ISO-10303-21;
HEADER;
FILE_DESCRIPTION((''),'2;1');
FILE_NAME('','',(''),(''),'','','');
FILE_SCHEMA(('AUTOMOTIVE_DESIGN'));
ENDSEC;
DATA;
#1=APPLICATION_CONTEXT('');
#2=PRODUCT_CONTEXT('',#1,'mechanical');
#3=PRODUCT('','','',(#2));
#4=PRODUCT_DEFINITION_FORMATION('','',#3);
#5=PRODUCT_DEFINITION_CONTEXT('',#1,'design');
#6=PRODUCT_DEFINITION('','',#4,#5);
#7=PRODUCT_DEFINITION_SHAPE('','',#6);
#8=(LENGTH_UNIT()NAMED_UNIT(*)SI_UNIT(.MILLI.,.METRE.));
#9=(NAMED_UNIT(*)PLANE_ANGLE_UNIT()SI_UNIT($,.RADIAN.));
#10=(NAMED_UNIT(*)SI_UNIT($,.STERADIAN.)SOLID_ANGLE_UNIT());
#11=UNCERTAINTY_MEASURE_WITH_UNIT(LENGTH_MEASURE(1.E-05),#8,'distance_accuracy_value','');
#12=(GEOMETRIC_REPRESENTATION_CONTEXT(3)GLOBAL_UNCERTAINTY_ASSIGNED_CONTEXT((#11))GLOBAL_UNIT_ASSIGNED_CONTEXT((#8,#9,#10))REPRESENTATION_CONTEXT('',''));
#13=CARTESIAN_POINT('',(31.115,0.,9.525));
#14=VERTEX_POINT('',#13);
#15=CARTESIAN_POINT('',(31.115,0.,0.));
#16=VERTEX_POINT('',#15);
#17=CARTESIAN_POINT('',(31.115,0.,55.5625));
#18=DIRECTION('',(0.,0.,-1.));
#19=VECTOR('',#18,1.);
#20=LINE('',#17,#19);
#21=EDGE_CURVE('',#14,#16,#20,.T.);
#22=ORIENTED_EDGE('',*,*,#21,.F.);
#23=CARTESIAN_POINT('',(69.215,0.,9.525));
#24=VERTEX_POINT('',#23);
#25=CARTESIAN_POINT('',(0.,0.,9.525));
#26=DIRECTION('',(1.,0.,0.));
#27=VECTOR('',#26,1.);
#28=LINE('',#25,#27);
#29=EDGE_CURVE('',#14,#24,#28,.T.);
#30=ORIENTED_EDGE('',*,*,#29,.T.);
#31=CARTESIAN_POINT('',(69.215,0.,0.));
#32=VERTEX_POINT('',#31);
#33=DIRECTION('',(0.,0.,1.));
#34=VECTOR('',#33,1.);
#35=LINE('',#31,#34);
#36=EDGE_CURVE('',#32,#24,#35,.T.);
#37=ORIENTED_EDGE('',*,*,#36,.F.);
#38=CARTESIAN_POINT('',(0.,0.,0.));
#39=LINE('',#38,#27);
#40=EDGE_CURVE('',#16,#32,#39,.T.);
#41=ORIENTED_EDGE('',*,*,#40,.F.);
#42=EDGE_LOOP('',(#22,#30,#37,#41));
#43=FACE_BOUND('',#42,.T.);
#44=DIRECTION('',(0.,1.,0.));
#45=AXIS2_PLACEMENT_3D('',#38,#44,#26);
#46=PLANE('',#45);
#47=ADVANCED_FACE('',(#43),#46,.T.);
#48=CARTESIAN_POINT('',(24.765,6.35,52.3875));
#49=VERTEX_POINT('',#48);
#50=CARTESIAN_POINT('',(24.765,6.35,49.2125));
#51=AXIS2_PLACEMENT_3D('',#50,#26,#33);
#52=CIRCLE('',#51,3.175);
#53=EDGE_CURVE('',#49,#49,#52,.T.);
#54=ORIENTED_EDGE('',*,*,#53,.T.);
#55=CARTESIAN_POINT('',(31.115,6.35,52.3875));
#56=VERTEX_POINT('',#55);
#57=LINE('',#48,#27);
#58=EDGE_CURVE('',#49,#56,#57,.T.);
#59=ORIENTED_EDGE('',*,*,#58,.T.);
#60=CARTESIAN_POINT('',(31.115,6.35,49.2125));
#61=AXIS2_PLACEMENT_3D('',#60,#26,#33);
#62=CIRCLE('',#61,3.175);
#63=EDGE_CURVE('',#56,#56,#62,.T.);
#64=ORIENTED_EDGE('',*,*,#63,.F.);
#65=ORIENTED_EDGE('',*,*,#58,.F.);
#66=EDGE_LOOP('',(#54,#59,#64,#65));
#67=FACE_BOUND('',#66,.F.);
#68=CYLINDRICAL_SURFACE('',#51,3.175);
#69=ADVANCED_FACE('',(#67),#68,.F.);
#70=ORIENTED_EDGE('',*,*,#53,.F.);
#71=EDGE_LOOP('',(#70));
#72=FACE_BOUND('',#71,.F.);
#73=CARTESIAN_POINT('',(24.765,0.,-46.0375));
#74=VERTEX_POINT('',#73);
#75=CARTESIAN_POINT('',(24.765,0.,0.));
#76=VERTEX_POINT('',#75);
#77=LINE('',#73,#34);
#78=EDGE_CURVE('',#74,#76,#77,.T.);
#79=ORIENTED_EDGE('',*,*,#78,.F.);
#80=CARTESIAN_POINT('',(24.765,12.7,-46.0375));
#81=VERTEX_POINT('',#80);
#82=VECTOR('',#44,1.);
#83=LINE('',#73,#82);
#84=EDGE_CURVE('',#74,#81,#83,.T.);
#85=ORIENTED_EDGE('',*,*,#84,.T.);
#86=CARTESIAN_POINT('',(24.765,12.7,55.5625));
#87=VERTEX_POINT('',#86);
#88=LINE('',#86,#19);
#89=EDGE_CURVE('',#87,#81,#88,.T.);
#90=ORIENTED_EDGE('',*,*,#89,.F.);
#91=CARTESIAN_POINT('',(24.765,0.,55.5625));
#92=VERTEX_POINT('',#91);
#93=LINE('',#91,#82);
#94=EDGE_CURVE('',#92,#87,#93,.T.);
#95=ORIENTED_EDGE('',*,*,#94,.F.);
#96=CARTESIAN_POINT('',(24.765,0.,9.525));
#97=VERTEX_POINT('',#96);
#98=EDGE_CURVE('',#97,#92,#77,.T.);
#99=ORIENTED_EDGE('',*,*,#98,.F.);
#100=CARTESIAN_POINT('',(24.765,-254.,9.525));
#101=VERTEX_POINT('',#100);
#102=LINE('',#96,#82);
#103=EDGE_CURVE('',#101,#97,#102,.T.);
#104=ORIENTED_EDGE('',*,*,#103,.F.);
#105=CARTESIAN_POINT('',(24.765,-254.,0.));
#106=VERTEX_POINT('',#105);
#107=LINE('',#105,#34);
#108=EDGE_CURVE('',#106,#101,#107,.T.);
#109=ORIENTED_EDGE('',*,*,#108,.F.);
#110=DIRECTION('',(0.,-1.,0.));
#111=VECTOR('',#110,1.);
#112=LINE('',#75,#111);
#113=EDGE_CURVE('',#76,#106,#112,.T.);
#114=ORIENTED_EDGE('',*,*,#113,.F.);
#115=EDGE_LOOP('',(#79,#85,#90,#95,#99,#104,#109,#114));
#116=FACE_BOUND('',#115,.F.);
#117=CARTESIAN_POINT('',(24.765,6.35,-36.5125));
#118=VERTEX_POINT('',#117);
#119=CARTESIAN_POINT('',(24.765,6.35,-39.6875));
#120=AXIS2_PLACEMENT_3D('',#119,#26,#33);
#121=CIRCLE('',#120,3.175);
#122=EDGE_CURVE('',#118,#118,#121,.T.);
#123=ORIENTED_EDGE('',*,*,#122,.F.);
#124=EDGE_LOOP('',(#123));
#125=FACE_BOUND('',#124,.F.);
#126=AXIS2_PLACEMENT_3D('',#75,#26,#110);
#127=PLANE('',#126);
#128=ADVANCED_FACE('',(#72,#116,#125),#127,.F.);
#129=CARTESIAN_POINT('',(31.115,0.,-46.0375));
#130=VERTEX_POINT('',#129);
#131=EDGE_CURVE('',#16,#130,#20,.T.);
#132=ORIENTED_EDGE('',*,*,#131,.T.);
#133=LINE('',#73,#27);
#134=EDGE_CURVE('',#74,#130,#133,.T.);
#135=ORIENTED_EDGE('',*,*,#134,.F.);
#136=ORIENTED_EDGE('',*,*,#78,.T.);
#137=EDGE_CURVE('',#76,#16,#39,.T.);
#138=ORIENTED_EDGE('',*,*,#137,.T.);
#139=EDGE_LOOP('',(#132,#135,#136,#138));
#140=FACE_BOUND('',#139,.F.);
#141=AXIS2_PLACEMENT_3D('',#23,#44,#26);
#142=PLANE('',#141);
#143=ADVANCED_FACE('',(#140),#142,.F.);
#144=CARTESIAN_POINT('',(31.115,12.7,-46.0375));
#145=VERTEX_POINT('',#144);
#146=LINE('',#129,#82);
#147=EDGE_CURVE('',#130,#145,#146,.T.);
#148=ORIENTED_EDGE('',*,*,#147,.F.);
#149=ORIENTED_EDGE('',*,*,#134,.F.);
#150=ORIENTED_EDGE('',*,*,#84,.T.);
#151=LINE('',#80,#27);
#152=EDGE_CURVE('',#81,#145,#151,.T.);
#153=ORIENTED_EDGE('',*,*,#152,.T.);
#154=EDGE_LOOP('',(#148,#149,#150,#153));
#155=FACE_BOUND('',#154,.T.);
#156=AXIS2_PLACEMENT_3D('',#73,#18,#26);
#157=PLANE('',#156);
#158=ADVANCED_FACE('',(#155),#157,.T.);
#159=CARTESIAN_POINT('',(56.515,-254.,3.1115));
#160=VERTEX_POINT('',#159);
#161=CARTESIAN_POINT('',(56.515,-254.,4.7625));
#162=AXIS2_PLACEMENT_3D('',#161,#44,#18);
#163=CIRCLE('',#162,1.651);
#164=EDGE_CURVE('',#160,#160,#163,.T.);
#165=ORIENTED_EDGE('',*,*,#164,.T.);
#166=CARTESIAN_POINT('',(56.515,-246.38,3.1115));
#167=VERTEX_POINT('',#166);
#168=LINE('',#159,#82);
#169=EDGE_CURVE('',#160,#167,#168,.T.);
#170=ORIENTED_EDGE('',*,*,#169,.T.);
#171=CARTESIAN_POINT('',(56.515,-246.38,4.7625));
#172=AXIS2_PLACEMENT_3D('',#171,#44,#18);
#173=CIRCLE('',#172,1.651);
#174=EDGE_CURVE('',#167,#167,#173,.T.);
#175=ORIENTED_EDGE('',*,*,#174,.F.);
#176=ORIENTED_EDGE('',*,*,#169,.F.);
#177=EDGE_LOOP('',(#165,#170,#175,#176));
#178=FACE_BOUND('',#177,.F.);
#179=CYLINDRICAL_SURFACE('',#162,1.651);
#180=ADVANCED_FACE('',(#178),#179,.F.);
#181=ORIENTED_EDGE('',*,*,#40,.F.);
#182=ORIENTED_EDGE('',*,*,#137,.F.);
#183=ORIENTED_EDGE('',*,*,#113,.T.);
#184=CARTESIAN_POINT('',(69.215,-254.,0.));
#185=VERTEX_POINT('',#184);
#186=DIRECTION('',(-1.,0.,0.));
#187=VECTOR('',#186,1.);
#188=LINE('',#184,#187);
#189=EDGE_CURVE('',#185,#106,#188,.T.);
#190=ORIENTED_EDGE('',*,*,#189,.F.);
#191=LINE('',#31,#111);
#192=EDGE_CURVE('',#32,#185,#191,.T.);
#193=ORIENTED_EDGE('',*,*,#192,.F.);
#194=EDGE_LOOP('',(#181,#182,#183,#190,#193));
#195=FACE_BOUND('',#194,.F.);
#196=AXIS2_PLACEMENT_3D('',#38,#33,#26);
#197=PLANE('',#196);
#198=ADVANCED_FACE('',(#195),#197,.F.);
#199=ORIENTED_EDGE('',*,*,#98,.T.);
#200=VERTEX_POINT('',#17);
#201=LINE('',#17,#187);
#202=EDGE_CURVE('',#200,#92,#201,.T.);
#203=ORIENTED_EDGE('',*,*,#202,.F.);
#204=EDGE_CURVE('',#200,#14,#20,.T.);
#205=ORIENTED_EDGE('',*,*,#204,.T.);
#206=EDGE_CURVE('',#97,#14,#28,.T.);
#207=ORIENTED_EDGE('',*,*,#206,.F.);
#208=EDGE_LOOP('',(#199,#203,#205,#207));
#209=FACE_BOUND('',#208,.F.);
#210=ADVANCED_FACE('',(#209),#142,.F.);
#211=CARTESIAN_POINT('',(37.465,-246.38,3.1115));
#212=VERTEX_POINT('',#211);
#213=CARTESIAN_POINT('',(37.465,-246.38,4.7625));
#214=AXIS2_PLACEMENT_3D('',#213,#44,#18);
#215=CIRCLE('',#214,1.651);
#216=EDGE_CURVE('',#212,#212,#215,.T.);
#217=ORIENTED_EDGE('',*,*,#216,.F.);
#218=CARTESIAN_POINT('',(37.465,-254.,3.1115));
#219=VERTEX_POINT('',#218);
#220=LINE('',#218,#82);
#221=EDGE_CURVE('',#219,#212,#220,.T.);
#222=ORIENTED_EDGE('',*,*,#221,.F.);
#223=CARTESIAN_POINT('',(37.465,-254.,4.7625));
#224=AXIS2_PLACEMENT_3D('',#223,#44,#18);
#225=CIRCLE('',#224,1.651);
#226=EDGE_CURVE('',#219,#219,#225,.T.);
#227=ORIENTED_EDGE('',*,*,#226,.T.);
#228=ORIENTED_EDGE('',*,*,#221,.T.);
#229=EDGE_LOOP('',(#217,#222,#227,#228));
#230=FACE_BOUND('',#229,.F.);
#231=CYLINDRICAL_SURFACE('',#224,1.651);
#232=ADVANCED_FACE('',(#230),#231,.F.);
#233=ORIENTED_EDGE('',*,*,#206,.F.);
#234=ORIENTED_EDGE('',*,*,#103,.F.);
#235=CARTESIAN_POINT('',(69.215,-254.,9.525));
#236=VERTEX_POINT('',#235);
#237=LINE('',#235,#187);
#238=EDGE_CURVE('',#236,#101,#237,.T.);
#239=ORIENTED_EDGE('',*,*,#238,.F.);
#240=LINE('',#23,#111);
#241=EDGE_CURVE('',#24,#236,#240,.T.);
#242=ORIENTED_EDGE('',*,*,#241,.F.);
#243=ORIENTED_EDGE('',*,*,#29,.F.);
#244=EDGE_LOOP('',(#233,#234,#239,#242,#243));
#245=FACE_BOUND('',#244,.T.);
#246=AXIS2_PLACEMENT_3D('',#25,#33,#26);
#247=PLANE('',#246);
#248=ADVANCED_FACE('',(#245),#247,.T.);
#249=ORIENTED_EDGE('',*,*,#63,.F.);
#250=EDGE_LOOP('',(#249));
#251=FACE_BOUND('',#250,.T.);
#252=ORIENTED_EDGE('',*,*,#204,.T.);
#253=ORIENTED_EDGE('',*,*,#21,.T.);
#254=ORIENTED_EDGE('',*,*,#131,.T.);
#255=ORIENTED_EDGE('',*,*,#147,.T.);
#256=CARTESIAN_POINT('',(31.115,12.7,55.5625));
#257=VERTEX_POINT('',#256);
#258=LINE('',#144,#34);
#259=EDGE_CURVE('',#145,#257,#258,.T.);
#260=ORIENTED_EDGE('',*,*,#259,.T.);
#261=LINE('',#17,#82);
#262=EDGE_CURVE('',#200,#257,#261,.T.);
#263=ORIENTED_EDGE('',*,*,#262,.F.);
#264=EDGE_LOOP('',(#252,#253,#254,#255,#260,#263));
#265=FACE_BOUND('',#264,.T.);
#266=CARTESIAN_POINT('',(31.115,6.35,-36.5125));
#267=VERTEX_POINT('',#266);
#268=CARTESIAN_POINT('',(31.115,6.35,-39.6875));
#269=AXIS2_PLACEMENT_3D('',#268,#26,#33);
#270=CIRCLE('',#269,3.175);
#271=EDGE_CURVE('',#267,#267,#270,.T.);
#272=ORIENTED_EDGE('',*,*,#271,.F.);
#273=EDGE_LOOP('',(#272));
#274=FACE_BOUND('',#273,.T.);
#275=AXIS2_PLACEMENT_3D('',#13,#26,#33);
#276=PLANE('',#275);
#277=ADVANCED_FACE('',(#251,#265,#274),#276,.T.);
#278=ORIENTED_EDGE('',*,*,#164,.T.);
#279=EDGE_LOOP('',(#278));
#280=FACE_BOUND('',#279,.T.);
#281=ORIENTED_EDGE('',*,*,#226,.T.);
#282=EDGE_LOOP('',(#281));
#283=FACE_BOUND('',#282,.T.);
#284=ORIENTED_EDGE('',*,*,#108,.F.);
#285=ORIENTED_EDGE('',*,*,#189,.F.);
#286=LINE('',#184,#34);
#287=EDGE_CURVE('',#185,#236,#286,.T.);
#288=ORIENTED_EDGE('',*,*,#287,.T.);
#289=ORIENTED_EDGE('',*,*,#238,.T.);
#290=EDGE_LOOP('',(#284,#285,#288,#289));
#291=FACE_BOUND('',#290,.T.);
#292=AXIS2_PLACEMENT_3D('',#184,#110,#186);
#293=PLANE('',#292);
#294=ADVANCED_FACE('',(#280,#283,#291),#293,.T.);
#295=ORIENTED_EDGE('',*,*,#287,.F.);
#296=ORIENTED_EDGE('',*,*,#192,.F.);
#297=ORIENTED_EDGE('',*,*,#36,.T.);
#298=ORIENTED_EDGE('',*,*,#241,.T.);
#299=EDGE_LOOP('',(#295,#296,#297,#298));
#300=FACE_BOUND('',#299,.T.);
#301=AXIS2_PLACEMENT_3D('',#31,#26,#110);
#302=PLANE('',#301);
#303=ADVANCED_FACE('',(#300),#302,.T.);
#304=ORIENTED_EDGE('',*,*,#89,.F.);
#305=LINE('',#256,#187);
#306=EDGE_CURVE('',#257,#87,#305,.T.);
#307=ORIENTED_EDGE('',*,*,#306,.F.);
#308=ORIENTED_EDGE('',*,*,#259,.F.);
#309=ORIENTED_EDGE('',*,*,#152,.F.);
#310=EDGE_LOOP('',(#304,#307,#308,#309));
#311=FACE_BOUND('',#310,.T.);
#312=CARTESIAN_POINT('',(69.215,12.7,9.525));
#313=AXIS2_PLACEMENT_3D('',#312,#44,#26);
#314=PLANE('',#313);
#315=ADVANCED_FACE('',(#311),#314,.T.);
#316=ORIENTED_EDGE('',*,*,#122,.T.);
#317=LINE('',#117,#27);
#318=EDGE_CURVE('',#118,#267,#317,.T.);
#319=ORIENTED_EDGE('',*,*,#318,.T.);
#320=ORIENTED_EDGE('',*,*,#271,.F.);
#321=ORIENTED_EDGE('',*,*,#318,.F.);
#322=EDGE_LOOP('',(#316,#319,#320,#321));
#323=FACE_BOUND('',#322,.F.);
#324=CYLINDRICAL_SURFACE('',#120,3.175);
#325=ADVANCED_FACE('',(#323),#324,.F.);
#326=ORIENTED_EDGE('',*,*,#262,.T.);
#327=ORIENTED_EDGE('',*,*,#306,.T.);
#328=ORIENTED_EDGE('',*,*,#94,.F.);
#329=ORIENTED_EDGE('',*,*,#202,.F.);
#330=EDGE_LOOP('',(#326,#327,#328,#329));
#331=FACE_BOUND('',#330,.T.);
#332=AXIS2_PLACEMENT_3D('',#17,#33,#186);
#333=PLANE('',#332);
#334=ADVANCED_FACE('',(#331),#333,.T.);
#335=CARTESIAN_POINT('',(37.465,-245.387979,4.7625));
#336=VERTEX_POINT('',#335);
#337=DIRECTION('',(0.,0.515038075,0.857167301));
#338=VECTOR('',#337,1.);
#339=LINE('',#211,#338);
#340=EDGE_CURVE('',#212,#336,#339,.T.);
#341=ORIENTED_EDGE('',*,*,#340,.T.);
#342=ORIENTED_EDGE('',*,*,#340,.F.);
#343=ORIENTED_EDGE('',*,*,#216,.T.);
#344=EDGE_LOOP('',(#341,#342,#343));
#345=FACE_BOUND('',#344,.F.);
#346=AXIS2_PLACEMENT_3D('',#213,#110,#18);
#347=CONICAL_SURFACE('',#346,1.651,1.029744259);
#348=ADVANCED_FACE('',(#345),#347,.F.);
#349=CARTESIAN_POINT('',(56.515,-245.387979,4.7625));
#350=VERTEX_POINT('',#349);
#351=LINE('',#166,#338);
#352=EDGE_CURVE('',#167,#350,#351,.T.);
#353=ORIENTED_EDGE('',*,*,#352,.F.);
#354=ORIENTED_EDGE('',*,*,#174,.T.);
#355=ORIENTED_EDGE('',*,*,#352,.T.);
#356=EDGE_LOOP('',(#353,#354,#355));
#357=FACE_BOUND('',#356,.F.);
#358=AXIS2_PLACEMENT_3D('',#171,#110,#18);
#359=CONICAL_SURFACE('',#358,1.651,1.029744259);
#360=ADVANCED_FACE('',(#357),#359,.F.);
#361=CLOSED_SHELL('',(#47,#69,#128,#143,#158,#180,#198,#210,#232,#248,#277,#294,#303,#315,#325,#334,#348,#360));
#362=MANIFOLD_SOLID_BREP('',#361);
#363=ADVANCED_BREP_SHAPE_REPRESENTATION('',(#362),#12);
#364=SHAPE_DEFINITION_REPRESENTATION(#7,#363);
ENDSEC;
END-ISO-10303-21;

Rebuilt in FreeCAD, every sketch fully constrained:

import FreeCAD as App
import Part
import Sketcher

V = App.Vector
Q = App.Units.Quantity

doc = App.newDocument("Part")
body = doc.addObject("PartDesign::Body", "Body")

# Sketch on XY plane
sketch1 = body.newObject("Sketcher::SketchObject", "Sketch")
sketch1.AttachmentSupport = (doc.getObject("XY_Plane"), [""])
sketch1.MapMode = "FlatFace"
sketch1.addGeometry(Part.LineSegment(V(69.215, 0, 0), V(0, 0, 0)), False)
sketch1.addGeometry(Part.LineSegment(V(0, 0, 0), V(0, -254, 0)), False)
sketch1.addGeometry(Part.LineSegment(V(0, -254, 0), V(69.215, -254, 0)), False)
sketch1.addGeometry(Part.LineSegment(V(69.215, -254, 0), V(69.215, 0, 0)), False)
sketch1.addConstraint(Sketcher.Constraint("Coincident", 0, 2, 1, 1))
sketch1.addConstraint(Sketcher.Constraint("Coincident", 1, 2, 2, 1))
sketch1.addConstraint(Sketcher.Constraint("Coincident", 2, 2, 3, 1))
sketch1.addConstraint(Sketcher.Constraint("Coincident", 3, 2, 0, 1))
sketch1.addConstraint(Sketcher.Constraint("Horizontal", 0))
sketch1.addConstraint(Sketcher.Constraint("Vertical", 1))
sketch1.addConstraint(Sketcher.Constraint("Horizontal", 2))
sketch1.addConstraint(Sketcher.Constraint("Vertical", 3))
sketch1.addConstraint(Sketcher.Constraint("Coincident", 0, 2, -1, 1))
sketch1.addConstraint(Sketcher.Constraint("DistanceY", 1, 2, 1, 1, Q("10 in")))
sketch1.addConstraint(Sketcher.Constraint("DistanceX", 0, 2, 0, 1, Q("2.725 in")))
pad1 = body.newObject("PartDesign::Pad", "Pad")
pad1.Profile = sketch1
pad1.Length = Q("0.375 in")

# Sketch on XY plane
sketch2 = body.newObject("Sketcher::SketchObject", "Sketch001")
sketch2.AttachmentSupport = (doc.getObject("XY_Plane"), [""])
sketch2.MapMode = "FlatFace"
sketch2.addGeometry(Part.LineSegment(V(24.765, 0, 0), V(24.765, -254, 0)), False)
sketch2.addGeometry(Part.LineSegment(V(24.765, -254, 0), V(0, -254, 0)), False)
sketch2.addGeometry(Part.LineSegment(V(0, -254, 0), V(0, 0, 0)), False)
sketch2.addGeometry(Part.LineSegment(V(0, 0, 0), V(24.765, 0, 0)), False)
sketch2.addConstraint(Sketcher.Constraint("Coincident", 0, 2, 1, 1))
sketch2.addConstraint(Sketcher.Constraint("Coincident", 1, 2, 2, 1))
sketch2.addConstraint(Sketcher.Constraint("Coincident", 2, 2, 3, 1))
sketch2.addConstraint(Sketcher.Constraint("Coincident", 3, 2, 0, 1))
sketch2.addConstraint(Sketcher.Constraint("Vertical", 0))
sketch2.addConstraint(Sketcher.Constraint("Horizontal", 1))
sketch2.addConstraint(Sketcher.Constraint("Vertical", 2))
sketch2.addConstraint(Sketcher.Constraint("Horizontal", 3))
sketch2.addConstraint(Sketcher.Constraint("Coincident", 2, 2, -1, 1))
sketch2.addConstraint(Sketcher.Constraint("DistanceX", 1, 2, 1, 1, Q("0.975 in")))
sketch2.addConstraint(Sketcher.Constraint("DistanceY", 0, 2, 0, 1, Q("10 in")))
pocket1 = body.newObject("PartDesign::Pocket", "Pocket")
pocket1.Profile = sketch2
pocket1.Length = Q("5 in")
pocket1.Reversed = True

# Sketch on XZ plane
sketch3 = body.newObject("Sketcher::SketchObject", "Sketch002")
sketch3.AttachmentSupport = (doc.getObject("XZ_Plane"), [""])
sketch3.MapMode = "FlatFace"
sketch3.AttachmentOffset = App.Placement(V(0, 0, 10 * 25.4), App.Rotation())
sketch3.addGeometry(Part.Circle(V(37.465, 4.7625, 0), V(0, 0, 1), 1.651), False)
sketch3.addGeometry(Part.Circle(V(56.515, 4.7625, 0), V(0, 0, 1), 1.651), False)
sketch3.addConstraint(Sketcher.Constraint("Equal", 0, 1))
sketch3.addConstraint(Sketcher.Constraint("Horizontal", 0, 3, 1, 3))
sketch3.addConstraint(Sketcher.Constraint("Diameter", 0, Q("0.13 in")))
sketch3.addConstraint(Sketcher.Constraint("DistanceX", 0, 3, 1, 3, Q("0.75 in")))
sketch3.addConstraint(Sketcher.Constraint("DistanceX", -1, 1, 0, 3, Q("1.475 in")))
sketch3.addConstraint(Sketcher.Constraint("DistanceY", -1, 1, 0, 3, Q("0.1875 in")))
doc.recompute()
hole = body.newObject("PartDesign::Hole", "Hole")
hole.Profile = sketch3
hole.ThreadType = "None"
hole.Diameter = Q("0.13 in")
hole.DepthType = "Dimension"
hole.Depth = Q("0.3 in")
hole.DrillPoint = "Angled"
hole.DrillPointAngle = 118

# Sketch on XZ plane
sketch4 = body.newObject("Sketcher::SketchObject", "Sketch003")
sketch4.AttachmentSupport = (doc.getObject("XZ_Plane"), [""])
sketch4.MapMode = "FlatFace"
sketch4.addGeometry(Part.LineSegment(V(24.765, 55.5625, 0), V(31.115, 55.5625, 0)), False)
sketch4.addGeometry(Part.LineSegment(V(31.115, 55.5625, 0), V(31.115, -46.0375, 0)), False)
sketch4.addGeometry(Part.LineSegment(V(31.115, -46.0375, 0), V(24.765, -46.0375, 0)), False)
sketch4.addGeometry(Part.LineSegment(V(24.765, -46.0375, 0), V(24.765, 55.5625, 0)), False)
sketch4.addConstraint(Sketcher.Constraint("Coincident", 0, 2, 1, 1))
sketch4.addConstraint(Sketcher.Constraint("Coincident", 1, 2, 2, 1))
sketch4.addConstraint(Sketcher.Constraint("Coincident", 2, 2, 3, 1))
sketch4.addConstraint(Sketcher.Constraint("Coincident", 3, 2, 0, 1))
sketch4.addConstraint(Sketcher.Constraint("Horizontal", 0))
sketch4.addConstraint(Sketcher.Constraint("Vertical", 1))
sketch4.addConstraint(Sketcher.Constraint("Horizontal", 2))
sketch4.addConstraint(Sketcher.Constraint("Vertical", 3))
sketch4.addConstraint(Sketcher.Constraint("DistanceY", 1, 2, 1, 1, Q("4 in")))
sketch4.addConstraint(Sketcher.Constraint("DistanceX", 0, 1, 0, 2, Q("0.25 in")))
sketch4.addConstraint(Sketcher.Constraint("DistanceY", 1, 2, -1, 1, Q("1.8125 in")))
sketch4.addConstraint(Sketcher.Constraint("DistanceX", -1, 1, 0, 2, Q("1.225 in")))
pad2 = body.newObject("PartDesign::Pad", "Pad001")
pad2.Profile = sketch4
pad2.Length = Q("0.5 in")
pad2.Reversed = True

# Sketch on YZ plane
sketch5 = body.newObject("Sketcher::SketchObject", "Sketch004")
sketch5.AttachmentSupport = (doc.getObject("YZ_Plane"), [""])
sketch5.MapMode = "FlatFace"
sketch5.AttachmentOffset = App.Placement(V(0, 0, 0.975 * 25.4), App.Rotation())
sketch5.addGeometry(Part.Circle(V(6.35, -39.6875, 0), V(0, 0, 1), 3.175), False)
sketch5.addGeometry(Part.Circle(V(6.35, 49.2125, 0), V(0, 0, 1), 3.175), False)
sketch5.addConstraint(Sketcher.Constraint("Equal", 0, 1))
sketch5.addConstraint(Sketcher.Constraint("Vertical", 0, 3, 1, 3))
sketch5.addConstraint(Sketcher.Constraint("Diameter", 0, Q("0.25 in")))
sketch5.addConstraint(Sketcher.Constraint("DistanceY", 0, 3, 1, 3, Q("3.5 in")))
sketch5.addConstraint(Sketcher.Constraint("DistanceX", -1, 1, 0, 3, Q("0.25 in")))
sketch5.addConstraint(Sketcher.Constraint("DistanceY", 0, 3, -1, 1, Q("1.5625 in")))
doc.recompute()
hole2 = body.newObject("PartDesign::Hole", "Hole001")
hole2.Profile = sketch5
hole2.ThreadType = "None"
hole2.Diameter = Q("0.25 in")
hole2.DepthType = "Dimension"
hole2.Depth = Q("1 in")
hole2.DrillPoint = "Angled"
hole2.DrillPointAngle = 118
hole2.Reversed = True

doc.recompute()
